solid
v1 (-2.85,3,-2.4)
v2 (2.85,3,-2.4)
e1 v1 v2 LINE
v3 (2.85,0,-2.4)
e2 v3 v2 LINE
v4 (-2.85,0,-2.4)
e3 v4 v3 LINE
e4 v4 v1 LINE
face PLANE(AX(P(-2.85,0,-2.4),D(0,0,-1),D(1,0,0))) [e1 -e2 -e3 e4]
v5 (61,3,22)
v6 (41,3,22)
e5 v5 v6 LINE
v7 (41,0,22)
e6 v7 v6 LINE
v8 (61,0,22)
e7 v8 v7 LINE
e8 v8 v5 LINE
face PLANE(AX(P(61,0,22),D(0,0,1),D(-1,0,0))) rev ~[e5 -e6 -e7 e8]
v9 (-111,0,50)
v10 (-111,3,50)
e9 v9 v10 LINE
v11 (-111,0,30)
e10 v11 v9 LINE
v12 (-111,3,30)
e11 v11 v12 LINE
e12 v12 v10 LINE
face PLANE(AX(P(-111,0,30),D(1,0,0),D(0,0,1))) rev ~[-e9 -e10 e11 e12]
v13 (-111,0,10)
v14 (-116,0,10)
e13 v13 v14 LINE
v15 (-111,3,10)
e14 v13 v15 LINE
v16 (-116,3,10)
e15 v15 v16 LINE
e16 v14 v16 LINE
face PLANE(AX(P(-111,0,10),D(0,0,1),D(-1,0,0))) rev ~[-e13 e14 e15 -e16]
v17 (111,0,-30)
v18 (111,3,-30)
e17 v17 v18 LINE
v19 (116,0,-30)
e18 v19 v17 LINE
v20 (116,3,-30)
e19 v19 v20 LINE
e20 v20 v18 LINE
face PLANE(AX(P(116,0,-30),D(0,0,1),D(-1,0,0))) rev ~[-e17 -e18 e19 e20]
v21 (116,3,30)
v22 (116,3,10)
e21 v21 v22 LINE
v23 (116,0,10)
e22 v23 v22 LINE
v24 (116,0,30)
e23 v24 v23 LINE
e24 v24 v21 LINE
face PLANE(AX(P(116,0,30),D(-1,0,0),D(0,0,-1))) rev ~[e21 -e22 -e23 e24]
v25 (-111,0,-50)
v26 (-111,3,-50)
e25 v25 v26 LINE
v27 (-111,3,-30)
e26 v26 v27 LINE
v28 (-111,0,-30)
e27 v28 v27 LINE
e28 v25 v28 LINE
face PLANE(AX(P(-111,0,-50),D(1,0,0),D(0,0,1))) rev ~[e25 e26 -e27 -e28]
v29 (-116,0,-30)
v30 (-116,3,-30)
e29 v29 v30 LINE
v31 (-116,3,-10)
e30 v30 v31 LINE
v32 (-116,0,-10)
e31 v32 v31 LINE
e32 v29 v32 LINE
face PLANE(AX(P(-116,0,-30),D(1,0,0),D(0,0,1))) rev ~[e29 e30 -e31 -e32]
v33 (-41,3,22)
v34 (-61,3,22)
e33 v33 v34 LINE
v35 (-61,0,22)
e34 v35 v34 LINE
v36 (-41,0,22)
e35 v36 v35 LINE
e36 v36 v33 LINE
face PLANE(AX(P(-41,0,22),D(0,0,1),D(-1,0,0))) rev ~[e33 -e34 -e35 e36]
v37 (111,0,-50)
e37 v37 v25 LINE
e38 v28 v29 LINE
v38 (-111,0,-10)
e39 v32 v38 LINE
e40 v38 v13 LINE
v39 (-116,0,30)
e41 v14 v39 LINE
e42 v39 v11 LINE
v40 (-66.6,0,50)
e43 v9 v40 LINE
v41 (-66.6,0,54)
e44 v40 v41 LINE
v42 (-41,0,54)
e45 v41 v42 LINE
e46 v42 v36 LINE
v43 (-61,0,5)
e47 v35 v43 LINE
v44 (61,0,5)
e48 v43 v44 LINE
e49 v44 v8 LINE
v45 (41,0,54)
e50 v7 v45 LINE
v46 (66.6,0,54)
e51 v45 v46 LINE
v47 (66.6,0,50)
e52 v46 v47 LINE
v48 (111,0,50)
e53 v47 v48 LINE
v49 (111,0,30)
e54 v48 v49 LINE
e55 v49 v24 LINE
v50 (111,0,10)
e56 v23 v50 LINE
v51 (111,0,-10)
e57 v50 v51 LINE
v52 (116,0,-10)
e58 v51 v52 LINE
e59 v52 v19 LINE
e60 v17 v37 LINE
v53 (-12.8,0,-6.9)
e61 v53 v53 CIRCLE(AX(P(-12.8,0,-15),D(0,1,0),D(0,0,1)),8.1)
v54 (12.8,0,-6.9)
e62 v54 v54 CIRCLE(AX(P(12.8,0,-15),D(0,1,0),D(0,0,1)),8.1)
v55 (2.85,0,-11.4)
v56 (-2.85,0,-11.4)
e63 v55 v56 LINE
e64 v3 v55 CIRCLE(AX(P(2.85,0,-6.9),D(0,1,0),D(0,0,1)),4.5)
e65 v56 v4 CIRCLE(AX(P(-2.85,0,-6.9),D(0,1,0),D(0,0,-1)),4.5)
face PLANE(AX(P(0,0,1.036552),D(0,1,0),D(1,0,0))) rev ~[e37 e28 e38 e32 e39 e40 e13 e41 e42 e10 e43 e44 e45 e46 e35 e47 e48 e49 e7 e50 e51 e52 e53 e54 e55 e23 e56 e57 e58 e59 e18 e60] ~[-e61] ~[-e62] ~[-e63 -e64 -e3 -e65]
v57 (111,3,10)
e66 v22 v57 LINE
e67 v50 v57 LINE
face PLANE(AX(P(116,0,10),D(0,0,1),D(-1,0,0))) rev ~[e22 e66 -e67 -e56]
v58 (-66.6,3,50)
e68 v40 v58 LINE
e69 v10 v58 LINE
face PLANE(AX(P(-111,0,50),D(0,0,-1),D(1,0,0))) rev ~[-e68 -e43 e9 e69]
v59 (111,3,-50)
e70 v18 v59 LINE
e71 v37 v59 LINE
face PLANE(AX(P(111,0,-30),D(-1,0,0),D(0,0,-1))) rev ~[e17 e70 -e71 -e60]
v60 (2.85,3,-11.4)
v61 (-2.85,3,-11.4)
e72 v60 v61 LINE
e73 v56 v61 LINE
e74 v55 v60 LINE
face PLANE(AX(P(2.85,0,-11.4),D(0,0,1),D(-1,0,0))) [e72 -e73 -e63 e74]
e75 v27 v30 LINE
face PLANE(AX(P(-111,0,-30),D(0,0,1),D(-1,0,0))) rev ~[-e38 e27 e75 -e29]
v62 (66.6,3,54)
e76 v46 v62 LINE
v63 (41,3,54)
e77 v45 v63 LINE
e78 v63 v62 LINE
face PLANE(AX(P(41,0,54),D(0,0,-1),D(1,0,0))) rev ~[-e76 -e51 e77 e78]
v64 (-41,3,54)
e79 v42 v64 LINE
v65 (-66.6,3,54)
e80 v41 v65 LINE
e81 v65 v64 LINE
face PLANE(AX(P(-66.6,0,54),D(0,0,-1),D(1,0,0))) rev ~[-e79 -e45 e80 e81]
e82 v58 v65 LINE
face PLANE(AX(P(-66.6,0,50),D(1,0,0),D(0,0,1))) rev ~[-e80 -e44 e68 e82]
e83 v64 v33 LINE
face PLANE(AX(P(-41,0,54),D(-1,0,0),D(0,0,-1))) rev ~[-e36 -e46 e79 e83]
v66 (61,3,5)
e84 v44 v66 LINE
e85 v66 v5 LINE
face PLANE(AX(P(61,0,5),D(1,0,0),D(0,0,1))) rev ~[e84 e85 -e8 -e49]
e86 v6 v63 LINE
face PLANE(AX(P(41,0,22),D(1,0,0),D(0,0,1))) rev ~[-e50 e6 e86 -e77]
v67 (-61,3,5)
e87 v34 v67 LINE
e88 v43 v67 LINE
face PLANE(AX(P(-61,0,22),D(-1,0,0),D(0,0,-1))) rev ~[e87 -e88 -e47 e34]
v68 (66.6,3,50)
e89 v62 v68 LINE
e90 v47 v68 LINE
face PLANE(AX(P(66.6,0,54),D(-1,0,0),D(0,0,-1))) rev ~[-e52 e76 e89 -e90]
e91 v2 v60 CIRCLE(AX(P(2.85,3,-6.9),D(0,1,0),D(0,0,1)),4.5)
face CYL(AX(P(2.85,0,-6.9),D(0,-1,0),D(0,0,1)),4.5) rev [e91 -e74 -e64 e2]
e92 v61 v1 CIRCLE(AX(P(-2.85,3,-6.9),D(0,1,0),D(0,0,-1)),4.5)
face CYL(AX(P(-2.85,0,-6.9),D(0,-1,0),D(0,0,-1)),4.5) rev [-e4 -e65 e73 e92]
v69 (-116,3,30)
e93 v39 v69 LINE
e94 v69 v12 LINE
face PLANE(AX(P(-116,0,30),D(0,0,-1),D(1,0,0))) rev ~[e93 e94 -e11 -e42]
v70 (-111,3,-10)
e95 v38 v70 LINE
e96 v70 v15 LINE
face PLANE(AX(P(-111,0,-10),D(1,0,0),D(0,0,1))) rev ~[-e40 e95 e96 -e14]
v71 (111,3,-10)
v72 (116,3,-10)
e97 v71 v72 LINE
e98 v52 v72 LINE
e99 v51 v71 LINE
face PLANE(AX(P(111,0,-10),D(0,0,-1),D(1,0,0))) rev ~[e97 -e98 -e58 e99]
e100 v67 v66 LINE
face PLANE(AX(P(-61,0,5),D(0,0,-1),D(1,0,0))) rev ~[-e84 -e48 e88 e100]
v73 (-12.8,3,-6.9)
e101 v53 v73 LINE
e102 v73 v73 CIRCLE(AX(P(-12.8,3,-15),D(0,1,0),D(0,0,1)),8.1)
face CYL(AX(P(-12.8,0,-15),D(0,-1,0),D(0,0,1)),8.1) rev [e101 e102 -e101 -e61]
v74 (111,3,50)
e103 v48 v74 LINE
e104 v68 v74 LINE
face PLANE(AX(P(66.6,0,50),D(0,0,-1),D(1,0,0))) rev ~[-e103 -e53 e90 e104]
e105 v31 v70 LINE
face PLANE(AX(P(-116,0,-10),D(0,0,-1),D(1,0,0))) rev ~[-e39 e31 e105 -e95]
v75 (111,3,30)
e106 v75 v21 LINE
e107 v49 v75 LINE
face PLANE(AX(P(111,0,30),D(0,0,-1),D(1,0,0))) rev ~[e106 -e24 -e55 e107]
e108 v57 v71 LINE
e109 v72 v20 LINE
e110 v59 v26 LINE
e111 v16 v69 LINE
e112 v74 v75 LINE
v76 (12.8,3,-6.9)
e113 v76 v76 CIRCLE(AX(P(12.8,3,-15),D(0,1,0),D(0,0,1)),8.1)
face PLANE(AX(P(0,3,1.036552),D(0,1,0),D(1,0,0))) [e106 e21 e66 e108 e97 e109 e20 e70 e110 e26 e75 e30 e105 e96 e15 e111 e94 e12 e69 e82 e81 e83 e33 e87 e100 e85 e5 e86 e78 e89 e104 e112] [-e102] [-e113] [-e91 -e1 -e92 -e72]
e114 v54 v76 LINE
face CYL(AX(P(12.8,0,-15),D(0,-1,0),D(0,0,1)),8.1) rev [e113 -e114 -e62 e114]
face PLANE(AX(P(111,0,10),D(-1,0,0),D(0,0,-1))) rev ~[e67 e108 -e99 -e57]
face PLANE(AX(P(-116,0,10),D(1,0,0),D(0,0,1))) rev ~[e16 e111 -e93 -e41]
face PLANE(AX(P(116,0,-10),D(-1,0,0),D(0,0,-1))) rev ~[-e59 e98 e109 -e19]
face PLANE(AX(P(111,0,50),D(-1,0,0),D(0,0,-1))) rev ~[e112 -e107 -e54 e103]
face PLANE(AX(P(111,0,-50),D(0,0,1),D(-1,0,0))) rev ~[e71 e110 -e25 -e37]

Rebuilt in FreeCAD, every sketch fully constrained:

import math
import FreeCAD as App
import Part
import Sketcher


def add_polygon(sketch, points):
    """Adds a closed chain of lines whose ends are joined by coincident constraints."""
    first, n = sketch.GeometryCount, len(points)
    for a, b in zip(points, points[1:] + points[:1]):
        sketch.addGeometry(Part.LineSegment(App.Vector(*a, 0), App.Vector(*b, 0)), False)
    for i in range(n):
        sketch.addConstraint(Sketcher.Constraint("Coincident", first + i, 2, first + (i + 1) % n, 1))

doc = App.newDocument("Part")
body = doc.addObject("PartDesign::Body", "Body")

sketch1 = body.newObject("Sketcher::SketchObject", "Sketch")
sketch1.AttachmentSupport = (doc.getObject("XZ_Plane"), [""])
sketch1.MapMode = "FlatFace"
add_polygon(sketch1, [(-111, -30), (-116, -30), (-116, -10), (-111, -10), (-111, 10), (-116, 10), (-116, 30), (-111, 30), (-111, 50), (-66.6, 50), (-66.6, 54), (-41, 54), (-41, 22), (-61, 22), (-61, 5), (61, 5), (61, 22), (41, 22), (41, 54), (66.6, 54), (66.6, 50), (111, 50), (111, 30), (116, 30), (116, 10), (111, 10), (111, -10), (116, -10), (116, -30), (111, -30), (111, -50), (-111, -50)])
sketch1.addGeometry(Part.LineSegment(App.Vector(2.9, -2.4, 0), App.Vector(-2.9, -2.4, 0)), False)
sketch1.addGeometry(Part.ArcOfCircle(Part.Circle(App.Vector(-2.9, -6.9, 0), App.Vector(0, 0, 1), 4.5), math.radians(90), math.radians(270)), False)
sketch1.addGeometry(Part.LineSegment(App.Vector(-2.9, -11.4, 0), App.Vector(2.9, -11.4, 0)), False)
sketch1.addGeometry(Part.ArcOfCircle(Part.Circle(App.Vector(2.9, -6.9, 0), App.Vector(0, 0, 1), 4.5), math.radians(-90), math.radians(90)), False)
sketch1.addGeometry(Part.Circle(App.Vector(-12.8, -15, 0), App.Vector(0, 0, 1), 8.1), False)
sketch1.addGeometry(Part.Circle(App.Vector(12.8, -15, 0), App.Vector(0, 0, 1), 8.1), False)
sketch1.addConstraint([
    Sketcher.Constraint("Tangent", 32, 2, 33, 1),
    Sketcher.Constraint("Tangent", 33, 2, 34, 1),
    Sketcher.Constraint("Tangent", 34, 2, 35, 1),
    Sketcher.Constraint("Tangent", 35, 2, 32, 1),
    Sketcher.Constraint("Horizontal", 0),
    Sketcher.Constraint("Vertical", 1),
    Sketcher.Constraint("Horizontal", 2),
    Sketcher.Constraint("Vertical", 3),
    Sketcher.Constraint("Horizontal", 4),
    Sketcher.Constraint("Vertical", 5),
    Sketcher.Constraint("Horizontal", 6),
    Sketcher.Constraint("Vertical", 7),
    Sketcher.Constraint("Horizontal", 8),
    Sketcher.Constraint("Vertical", 9),
    Sketcher.Constraint("Horizontal", 10),
    Sketcher.Constraint("Vertical", 11),
    Sketcher.Constraint("Horizontal", 12),
    Sketcher.Constraint("Vertical", 13),
    Sketcher.Constraint("Horizontal", 14),
    Sketcher.Constraint("Vertical", 15),
    Sketcher.Constraint("Horizontal", 16),
    Sketcher.Constraint("Vertical", 17),
    Sketcher.Constraint("Horizontal", 18),
    Sketcher.Constraint("Vertical", 19),
    Sketcher.Constraint("Horizontal", 20),
    Sketcher.Constraint("Vertical", 21),
    Sketcher.Constraint("Horizontal", 22),
    Sketcher.Constraint("Vertical", 23),
    Sketcher.Constraint("Horizontal", 24),
    Sketcher.Constraint("Vertical", 25),
    Sketcher.Constraint("Horizontal", 26),
    Sketcher.Constraint("Vertical", 27),
    Sketcher.Constraint("Horizontal", 28),
    Sketcher.Constraint("Vertical", 29),
    Sketcher.Constraint("Horizontal", 30),
    Sketcher.Constraint("Vertical", 31),
    Sketcher.Constraint("Horizontal", 32),
    Sketcher.Constraint("Horizontal", 34),
    Sketcher.Constraint("Equal", 36, 37),
    Sketcher.Constraint("Symmetric", 0, 2, 22, 2, -1, 1),
    Sketcher.Constraint("Symmetric", 2, 2, 24, 2, -1, 1),
    Sketcher.Constraint("Symmetric", 4, 2, 26, 2, -1, 1),
    Sketcher.Constraint("Symmetric", 6, 2, 28, 2, -1, 1),
    Sketcher.Constraint("Symmetric", 20, 2, 30, 2, -1, 1),
    Sketcher.Constraint("Symmetric", 36, 3, 37, 3, -2),
    Sketcher.Constraint("Symmetric", 12, 2, 15, 2, -2),
    Sketcher.Constraint("Symmetric", 10, 2, 17, 2, -2),
    Sketcher.Constraint("Symmetric", 8, 2, 19, 2, -2),
    Sketcher.Constraint("Symmetric", 6, 2, 21, 2, -2),
    Sketcher.Constraint("Symmetric", 4, 2, 23, 2, -2),
    Sketcher.Constraint("Vertical", 3, 2, 6, 2),
    Sketcher.Constraint("Equal", 16, 1),
    Sketcher.Constraint("Equal", 1, 3),
    Sketcher.Constraint("Equal", 5, 7),
    Sketcher.Constraint("Diameter", 36, 16.2),
    Sketcher.Constraint("Radius", 33, 4.5),
    Sketcher.Constraint("DistanceX", 0, 2, 0, 1, 5.0),
    Sketcher.Constraint("DistanceX", 12, 2, 12, 1, 20.0),
    Sketcher.Constraint("DistanceX", 14, 1, 14, 2, 122.0),
    Sketcher.Constraint("DistanceX", 30, 2, 30, 1, 222.0),
    Sketcher.Constraint("DistanceY", 9, 1, 9, 2, 4.0),
    Sketcher.Constraint("DistanceY", 11, 2, 11, 1, 32.0),
    Sketcher.Constraint("DistanceY", 13, 2, 13, 1, 17.0),
    Sketcher.Constraint("DistanceX", 8, 1, 8, 2, 44.4),
    Sketcher.Constraint("DistanceX", 32, 2, 32, 1, 5.7),
    Sketcher.Constraint("DistanceY", 36, 3, -1, 1, 15.0),
    Sketcher.Constraint("DistanceY", 33, 3, -1, 1, 6.9),
    Sketcher.Constraint("DistanceX", 36, 3, -1, 1, 12.8),
    Sketcher.Constraint("DistanceX", 33, 3, -1, 1, 2.85),
])
pad1 = body.newObject("PartDesign::Pad", "Pad")
pad1.Profile = sketch1
pad1.Length = 3
pad1.Reversed = True

doc.recompute()
